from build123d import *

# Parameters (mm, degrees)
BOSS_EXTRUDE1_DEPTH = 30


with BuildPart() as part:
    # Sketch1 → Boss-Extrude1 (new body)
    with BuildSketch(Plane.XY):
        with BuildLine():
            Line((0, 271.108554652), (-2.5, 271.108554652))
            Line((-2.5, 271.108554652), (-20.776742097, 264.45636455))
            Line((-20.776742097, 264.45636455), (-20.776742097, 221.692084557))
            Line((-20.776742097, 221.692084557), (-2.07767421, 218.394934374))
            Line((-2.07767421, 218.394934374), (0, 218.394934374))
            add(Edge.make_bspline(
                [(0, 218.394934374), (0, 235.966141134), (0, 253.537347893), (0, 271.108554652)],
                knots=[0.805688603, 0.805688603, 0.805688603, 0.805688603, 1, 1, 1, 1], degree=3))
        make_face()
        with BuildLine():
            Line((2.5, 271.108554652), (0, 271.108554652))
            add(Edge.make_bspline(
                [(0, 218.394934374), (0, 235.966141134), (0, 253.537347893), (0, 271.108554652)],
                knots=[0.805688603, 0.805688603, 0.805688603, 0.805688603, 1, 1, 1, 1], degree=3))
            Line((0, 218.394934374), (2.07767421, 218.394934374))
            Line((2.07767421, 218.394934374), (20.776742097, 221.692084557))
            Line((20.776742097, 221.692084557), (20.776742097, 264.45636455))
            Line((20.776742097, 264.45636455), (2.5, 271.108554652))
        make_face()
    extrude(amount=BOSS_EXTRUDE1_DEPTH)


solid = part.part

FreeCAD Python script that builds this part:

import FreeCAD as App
import Part
import Sketcher

V = App.Vector
Q = App.Units.Quantity


def add_polygon(sketch, points):
    """Adds a closed chain of lines whose ends are joined by coincident constraints."""
    first, n = sketch.GeometryCount, len(points)
    for a, b in zip(points, points[1:] + points[:1]):
        sketch.addGeometry(Part.LineSegment(App.Vector(*a, 0), App.Vector(*b, 0)), False)
    for i in range(n):
        sketch.addConstraint(Sketcher.Constraint("Coincident", first + i, 2, first + (i + 1) % n, 1))

doc = App.newDocument("Part")
body = doc.addObject("PartDesign::Body", "Body")

# Sketch on XY plane
sketch1 = doc.addObject("Sketcher::SketchObject", "Sketch")
body.addObject(sketch1)
sketch1.AttachmentSupport = (doc.XY_Plane, [""])
sketch1.MapMode = "FlatFace"
add_polygon(sketch1, [(-2.5, 271.108555), (-20.776742, 264.456365), (-20.776742, 221.692085), (-2.077674, 218.394934), (2.077674, 218.394934), (20.776742, 221.692085), (20.776742, 264.456365), (2.5, 271.108555)])  # lines 0-7
sketch1.addConstraint([
    Sketcher.Constraint("Vertical", 1),
    Sketcher.Constraint("Horizontal", 3),
    Sketcher.Constraint("Vertical", 5),
    Sketcher.Constraint("Horizontal", 7),
    Sketcher.Constraint("Symmetric", 1, 2, 4, 2, -2),
    Sketcher.Constraint("Horizontal", 0, 2, 5, 2),
    Sketcher.Constraint("Equal", 2, 4),
    Sketcher.Constraint("Equal", 0, 6),
    Sketcher.Constraint("DistanceX", 7, 2, 7, 1, 5.0),
    Sketcher.Constraint("Angle", 0, Q("-160 deg")),
    Sketcher.Constraint("Angle", 2, Q("-10 deg")),
    Sketcher.Constraint("DistanceX", 3, 1, 3, 2, 4.155348),
    Sketcher.Constraint("DistanceY", 1, 2, 1, 1, 42.76428),
    Sketcher.Constraint("Distance", 2, 18.987531),
    Sketcher.Constraint("DistanceY", -1, 1, 0, 2, 264.456365),
])
pad1 = doc.addObject("PartDesign::Pad", "Pad")
body.addObject(pad1)
pad1.Profile = sketch1
pad1.Length = 30

doc.recompute()
